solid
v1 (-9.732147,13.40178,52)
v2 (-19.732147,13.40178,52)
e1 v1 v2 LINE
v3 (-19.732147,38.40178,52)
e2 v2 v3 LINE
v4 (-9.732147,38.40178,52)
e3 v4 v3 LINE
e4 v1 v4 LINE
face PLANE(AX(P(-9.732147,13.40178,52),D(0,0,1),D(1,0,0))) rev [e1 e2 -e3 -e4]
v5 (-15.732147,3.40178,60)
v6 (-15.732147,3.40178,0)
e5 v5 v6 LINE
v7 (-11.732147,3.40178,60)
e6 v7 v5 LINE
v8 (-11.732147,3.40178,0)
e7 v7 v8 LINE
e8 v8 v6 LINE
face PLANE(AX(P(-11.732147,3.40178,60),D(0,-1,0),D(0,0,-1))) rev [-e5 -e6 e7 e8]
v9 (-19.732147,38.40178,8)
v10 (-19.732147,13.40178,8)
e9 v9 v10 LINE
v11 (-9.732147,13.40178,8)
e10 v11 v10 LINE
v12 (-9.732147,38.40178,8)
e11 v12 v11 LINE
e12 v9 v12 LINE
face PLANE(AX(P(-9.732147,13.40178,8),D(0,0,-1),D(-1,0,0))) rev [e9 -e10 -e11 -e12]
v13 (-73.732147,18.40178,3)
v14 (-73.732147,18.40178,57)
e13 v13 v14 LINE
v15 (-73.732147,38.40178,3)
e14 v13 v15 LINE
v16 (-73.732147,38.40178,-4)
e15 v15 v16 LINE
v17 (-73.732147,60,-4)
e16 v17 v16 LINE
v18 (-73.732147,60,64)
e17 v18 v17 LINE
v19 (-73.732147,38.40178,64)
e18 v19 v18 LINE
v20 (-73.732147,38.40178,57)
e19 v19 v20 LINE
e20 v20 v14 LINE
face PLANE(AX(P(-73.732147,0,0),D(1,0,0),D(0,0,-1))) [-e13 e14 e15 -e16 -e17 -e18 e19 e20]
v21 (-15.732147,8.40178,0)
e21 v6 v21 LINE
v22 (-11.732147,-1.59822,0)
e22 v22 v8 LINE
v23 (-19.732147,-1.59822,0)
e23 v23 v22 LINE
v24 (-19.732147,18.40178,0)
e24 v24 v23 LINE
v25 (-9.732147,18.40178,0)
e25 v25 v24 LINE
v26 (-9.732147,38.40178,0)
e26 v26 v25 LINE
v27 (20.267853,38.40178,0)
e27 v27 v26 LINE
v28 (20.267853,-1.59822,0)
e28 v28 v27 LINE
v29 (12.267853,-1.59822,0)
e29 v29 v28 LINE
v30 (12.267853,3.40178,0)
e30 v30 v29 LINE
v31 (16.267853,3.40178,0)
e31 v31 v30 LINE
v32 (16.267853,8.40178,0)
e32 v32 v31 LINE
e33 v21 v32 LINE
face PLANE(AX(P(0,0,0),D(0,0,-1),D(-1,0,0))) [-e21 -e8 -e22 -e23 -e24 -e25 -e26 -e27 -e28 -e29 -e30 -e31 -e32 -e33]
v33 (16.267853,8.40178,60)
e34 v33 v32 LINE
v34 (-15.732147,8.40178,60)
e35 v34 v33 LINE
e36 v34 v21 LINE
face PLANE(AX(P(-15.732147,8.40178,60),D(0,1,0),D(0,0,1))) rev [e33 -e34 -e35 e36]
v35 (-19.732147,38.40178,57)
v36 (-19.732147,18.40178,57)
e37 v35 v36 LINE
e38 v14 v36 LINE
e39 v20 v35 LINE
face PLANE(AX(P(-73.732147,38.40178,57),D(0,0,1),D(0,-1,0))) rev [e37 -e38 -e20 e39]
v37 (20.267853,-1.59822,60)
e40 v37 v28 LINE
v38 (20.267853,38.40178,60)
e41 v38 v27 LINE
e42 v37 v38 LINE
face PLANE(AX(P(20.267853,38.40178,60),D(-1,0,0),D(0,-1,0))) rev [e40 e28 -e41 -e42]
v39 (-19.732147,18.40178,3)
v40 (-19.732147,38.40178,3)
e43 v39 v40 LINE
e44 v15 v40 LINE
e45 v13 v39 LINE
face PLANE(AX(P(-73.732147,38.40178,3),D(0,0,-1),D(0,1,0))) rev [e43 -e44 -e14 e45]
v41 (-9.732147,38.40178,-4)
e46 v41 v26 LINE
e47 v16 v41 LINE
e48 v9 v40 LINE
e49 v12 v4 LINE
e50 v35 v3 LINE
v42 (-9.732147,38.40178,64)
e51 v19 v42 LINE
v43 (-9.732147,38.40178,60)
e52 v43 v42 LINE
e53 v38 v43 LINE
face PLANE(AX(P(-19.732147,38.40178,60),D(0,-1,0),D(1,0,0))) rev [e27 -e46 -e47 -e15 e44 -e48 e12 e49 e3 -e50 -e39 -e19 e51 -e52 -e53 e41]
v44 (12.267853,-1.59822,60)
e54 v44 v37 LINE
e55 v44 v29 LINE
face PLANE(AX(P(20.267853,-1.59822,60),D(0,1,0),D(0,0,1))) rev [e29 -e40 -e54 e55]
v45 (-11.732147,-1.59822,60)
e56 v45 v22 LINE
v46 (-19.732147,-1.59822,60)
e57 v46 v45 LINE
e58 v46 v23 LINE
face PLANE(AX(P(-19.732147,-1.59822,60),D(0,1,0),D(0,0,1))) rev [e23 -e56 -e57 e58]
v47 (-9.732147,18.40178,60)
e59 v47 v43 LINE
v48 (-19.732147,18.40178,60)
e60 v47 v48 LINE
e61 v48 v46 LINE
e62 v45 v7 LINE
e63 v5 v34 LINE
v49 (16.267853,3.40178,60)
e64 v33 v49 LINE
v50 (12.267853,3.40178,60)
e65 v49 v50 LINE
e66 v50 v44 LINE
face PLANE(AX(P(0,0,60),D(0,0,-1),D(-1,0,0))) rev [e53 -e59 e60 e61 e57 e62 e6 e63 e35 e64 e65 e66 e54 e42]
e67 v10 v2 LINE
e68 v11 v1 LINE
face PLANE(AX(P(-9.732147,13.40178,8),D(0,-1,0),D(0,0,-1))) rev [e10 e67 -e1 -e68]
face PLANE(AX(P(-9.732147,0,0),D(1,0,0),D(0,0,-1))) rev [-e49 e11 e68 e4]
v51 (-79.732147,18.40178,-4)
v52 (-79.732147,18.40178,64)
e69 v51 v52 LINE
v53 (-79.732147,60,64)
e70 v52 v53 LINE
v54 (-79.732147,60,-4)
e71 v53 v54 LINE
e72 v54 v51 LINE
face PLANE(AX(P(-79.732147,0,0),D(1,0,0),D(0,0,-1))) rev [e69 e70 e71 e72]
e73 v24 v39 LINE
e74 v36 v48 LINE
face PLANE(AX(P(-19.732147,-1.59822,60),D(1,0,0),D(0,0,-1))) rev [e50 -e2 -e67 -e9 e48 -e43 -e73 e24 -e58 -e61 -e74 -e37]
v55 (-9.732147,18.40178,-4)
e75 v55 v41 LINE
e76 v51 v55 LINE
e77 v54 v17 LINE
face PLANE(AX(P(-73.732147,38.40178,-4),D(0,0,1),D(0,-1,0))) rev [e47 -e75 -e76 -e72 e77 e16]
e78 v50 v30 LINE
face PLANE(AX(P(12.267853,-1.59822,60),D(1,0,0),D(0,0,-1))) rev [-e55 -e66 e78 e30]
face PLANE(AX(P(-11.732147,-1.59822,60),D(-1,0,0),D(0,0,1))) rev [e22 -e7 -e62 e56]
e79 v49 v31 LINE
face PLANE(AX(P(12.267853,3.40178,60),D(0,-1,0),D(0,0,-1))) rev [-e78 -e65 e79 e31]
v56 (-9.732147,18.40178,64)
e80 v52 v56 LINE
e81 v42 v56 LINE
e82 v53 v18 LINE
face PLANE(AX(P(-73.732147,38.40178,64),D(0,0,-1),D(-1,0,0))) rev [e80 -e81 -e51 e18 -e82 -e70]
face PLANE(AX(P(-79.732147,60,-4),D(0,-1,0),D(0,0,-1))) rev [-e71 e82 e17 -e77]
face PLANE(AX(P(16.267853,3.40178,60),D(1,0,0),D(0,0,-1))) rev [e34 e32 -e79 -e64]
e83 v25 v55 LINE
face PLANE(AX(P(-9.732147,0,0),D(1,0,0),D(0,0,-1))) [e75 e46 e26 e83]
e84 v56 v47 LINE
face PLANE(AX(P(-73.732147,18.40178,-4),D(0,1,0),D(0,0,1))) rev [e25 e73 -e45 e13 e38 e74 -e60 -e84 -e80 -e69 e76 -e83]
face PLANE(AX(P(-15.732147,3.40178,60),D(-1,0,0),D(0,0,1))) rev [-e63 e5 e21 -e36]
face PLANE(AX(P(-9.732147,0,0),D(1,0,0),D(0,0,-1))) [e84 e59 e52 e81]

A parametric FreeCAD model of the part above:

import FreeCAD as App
import Part
import Sketcher
Q = App.Units.Quantity


def add_polygon(sketch, points):
    """Adds a closed chain of lines whose ends are joined by coincident constraints."""
    first, n = sketch.GeometryCount, len(points)
    for a, b in zip(points, points[1:] + points[:1]):
        sketch.addGeometry(Part.LineSegment(App.Vector(*a, 0), App.Vector(*b, 0)), False)
    for i in range(n):
        sketch.addConstraint(Sketcher.Constraint("Coincident", first + i, 2, first + (i + 1) % n, 1))

doc = App.newDocument("Part")
body = doc.addObject("PartDesign::Body", "Body")

# Sketch on XY plane
sketch1 = doc.addObject("Sketcher::SketchObject", "Sketch")
body.addObject(sketch1)
sketch1.AttachmentSupport = (doc.XY_Plane, [""])
sketch1.MapMode = "FlatFace"
add_polygon(sketch1, [(-19.7, -1.6), (-11.7, -1.6), (-11.7, 3.4), (-15.7, 3.4), (-15.7, 8.4), (16.3, 8.4), (16.3, 3.4), (12.3, 3.4), (12.3, -1.6), (20.3, -1.6), (20.3, 38.4), (-19.7, 38.4)])  # lines 0-11
sketch1.addConstraint([
    Sketcher.Constraint("Horizontal", 0),
    Sketcher.Constraint("Vertical", 1),
    Sketcher.Constraint("Horizontal", 2),
    Sketcher.Constraint("Vertical", 3),
    Sketcher.Constraint("Horizontal", 4),
    Sketcher.Constraint("Vertical", 5),
    Sketcher.Constraint("Horizontal", 6),
    Sketcher.Constraint("Vertical", 7),
    Sketcher.Constraint("Horizontal", 8),
    Sketcher.Constraint("Vertical", 9),
    Sketcher.Constraint("Horizontal", 10),
    Sketcher.Constraint("Vertical", 11),
    Sketcher.Constraint("Horizontal", 2, 2, 5, 2),
    Sketcher.Constraint("Horizontal", 0, 2, 7, 2),
    Sketcher.Constraint("Equal", 2, 6),
    Sketcher.Constraint("Equal", 0, 8),
    Sketcher.Constraint("Equal", 1, 3),
    Sketcher.Constraint("Equal", 10, 9),
    Sketcher.Constraint("DistanceX", 0, 1, 0, 2, Q("8 mm")),
    Sketcher.Constraint("DistanceX", 2, 2, 2, 1, Q("4 mm")),
    Sketcher.Constraint("DistanceX", 4, 1, 4, 2, Q("32 mm")),
    Sketcher.Constraint("DistanceY", 1, 1, 1, 2, Q("5 mm")),
    Sketcher.Constraint("DistanceY", 0, 2, -1, 1, Q("1.59822 mm")),
    Sketcher.Constraint("DistanceX", 0, 2, -1, 1, Q("11.732147 mm")),
])
pad1 = doc.addObject("PartDesign::Pad", "Pad")
body.addObject(pad1)
pad1.Profile = sketch1
pad1.Length = 60

# Sketch on YZ plane
sketch2 = doc.addObject("Sketcher::SketchObject", "Sketch001")
body.addObject(sketch2)
sketch2.AttachmentSupport = (doc.YZ_Plane, [""])
sketch2.MapMode = "FlatFace"
sketch2.AttachmentOffset = App.Placement(App.Vector(0, 0, -19.732147), App.Rotation())
add_polygon(sketch2, [(38, -4), (18, -4), (18, 3), (38, 3)])  # lines 0-3
add_polygon(sketch2, [(38, 57), (18, 57), (18, 64), (38, 64)])  # lines 4-7
sketch2.addConstraint([
    Sketcher.Constraint("Horizontal", 0),
    Sketcher.Constraint("Vertical", 1),
    Sketcher.Constraint("Horizontal", 2),
    Sketcher.Constraint("Vertical", 3),
    Sketcher.Constraint("Horizontal", 4),
    Sketcher.Constraint("Vertical", 5),
    Sketcher.Constraint("Horizontal", 6),
    Sketcher.Constraint("Vertical", 7),
    Sketcher.Constraint("Vertical", 1, 2, 4, 2),
    Sketcher.Constraint("Vertical", 3, 2, 6, 2),
    Sketcher.Constraint("Equal", 3, 5),
    Sketcher.Constraint("DistanceX", 0, 2, 0, 1, Q("20 mm")),
    Sketcher.Constraint("DistanceY", 1, 1, 1, 2, Q("7 mm")),
    Sketcher.Constraint("DistanceY", 0, 2, -1, 1, Q("4 mm")),
    Sketcher.Constraint("DistanceY", -1, 1, 4, 2, Q("57 mm")),
    Sketcher.Constraint("DistanceX", -1, 1, 0, 2, Q("18.40178 mm")),
])
pad2 = doc.addObject("PartDesign::Pad", "Pad001")
body.addObject(pad2)
pad2.Profile = sketch2
pad2.Length = 54
pad2.Reversed = True

# Sketch on YZ plane
sketch3 = doc.addObject("Sketcher::SketchObject", "Sketch002")
body.addObject(sketch3)
sketch3.AttachmentSupport = (doc.YZ_Plane, [""])
sketch3.MapMode = "FlatFace"
sketch3.AttachmentOffset = App.Placement(App.Vector(0, 0, -19.732147), App.Rotation())
add_polygon(sketch3, [(38.4, 64), (18.4, 64), (18.4, 60), (38.4, 60)])  # lines 0-3
add_polygon(sketch3, [(38.4, 0), (18.4, 0), (18.4, -4), (38.4, -4)])  # lines 4-7
sketch3.addConstraint([
    Sketcher.Constraint("Horizontal", 0),
    Sketcher.Constraint("Vertical", 1),
    Sketcher.Constraint("Horizontal", 2),
    Sketcher.Constraint("Vertical", 3),
    Sketcher.Constraint("Horizontal", 4),
    Sketcher.Constraint("Vertical", 5),
    Sketcher.Constraint("Horizontal", 6),
    Sketcher.Constraint("Vertical", 7),
    Sketcher.Constraint("PointOnObject", 4, 2, -1),
    Sketcher.Constraint("Vertical", 1, 2, 4, 2),
    Sketcher.Constraint("Vertical", 3, 2, 6, 2),
    Sketcher.Constraint("Equal", 3, 5),
    Sketcher.Constraint("DistanceX", 0, 2, 0, 1, Q("20 mm")),
    Sketcher.Constraint("DistanceY", 1, 2, 1, 1, Q("4 mm")),
    Sketcher.Constraint("DistanceY", -1, 1, 0, 2, Q("64 mm")),
    Sketcher.Constraint("DistanceX", -1, 1, 0, 2, Q("18.40178 mm")),
])
pad3 = doc.addObject("PartDesign::Pad", "Pad002")
body.addObject(pad3)
pad3.Profile = sketch3
pad3.Length = 10

# Sketch on YZ plane
sketch4 = doc.addObject("Sketcher::SketchObject", "Sketch003")
body.addObject(sketch4)
sketch4.AttachmentSupport = (doc.YZ_Plane, [""])
sketch4.MapMode = "FlatFace"
sketch4.AttachmentOffset = App.Placement(App.Vector(0, 0, -73.732147), App.Rotation())
add_polygon(sketch4, [(60, -4), (18, -4), (18, 64), (60, 64)])  # lines 0-3
sketch4.addConstraint([
    Sketcher.Constraint("Horizontal", 0),
    Sketcher.Constraint("Vertical", 1),
    Sketcher.Constraint("Horizontal", 2),
    Sketcher.Constraint("Vertical", 3),
    Sketcher.Constraint("DistanceY", 1, 1, 1, 2, Q("68 mm")),
    Sketcher.Constraint("DistanceY", 0, 2, -1, 1, Q("4 mm")),
    Sketcher.Constraint("DistanceX", -1, 1, 2, 2, Q("60 mm")),
    Sketcher.Constraint("DistanceX", 0, 2, 0, 1, Q("41.59822 mm")),
])
pad4 = doc.addObject("PartDesign::Pad", "Pad003")
body.addObject(pad4)
pad4.Profile = sketch4
pad4.Length = 6
pad4.Reversed = True

# Sketch on YZ plane
sketch5 = doc.addObject("Sketcher::SketchObject", "Sketch004")
body.addObject(sketch5)
sketch5.AttachmentSupport = (doc.YZ_Plane, [""])
sketch5.MapMode = "FlatFace"
sketch5.AttachmentOffset = App.Placement(App.Vector(0, 0, -19.732147), App.Rotation())
add_polygon(sketch5, [(39, 8), (13, 8), (13, 52), (39, 52)])  # lines 0-3
sketch5.addConstraint([
    Sketcher.Constraint("Horizontal", 0),
    Sketcher.Constraint("Vertical", 1),
    Sketcher.Constraint("Horizontal", 2),
    Sketcher.Constraint("Vertical", 3),
    Sketcher.Constraint("DistanceY", 1, 1, 1, 2, Q("44 mm")),
    Sketcher.Constraint("DistanceY", -1, 1, 0, 2, Q("8 mm")),
    Sketcher.Constraint("DistanceX", 0, 2, 0, 1, Q("25.180334 mm")),
    Sketcher.Constraint("DistanceX", -1, 1, 0, 2, Q("13.40178 mm")),
])
pocket1 = doc.addObject("PartDesign::Pocket", "Pocket")
body.addObject(pocket1)
pocket1.Profile = sketch5
pocket1.Length = 10
pocket1.Reversed = True

doc.recompute()
